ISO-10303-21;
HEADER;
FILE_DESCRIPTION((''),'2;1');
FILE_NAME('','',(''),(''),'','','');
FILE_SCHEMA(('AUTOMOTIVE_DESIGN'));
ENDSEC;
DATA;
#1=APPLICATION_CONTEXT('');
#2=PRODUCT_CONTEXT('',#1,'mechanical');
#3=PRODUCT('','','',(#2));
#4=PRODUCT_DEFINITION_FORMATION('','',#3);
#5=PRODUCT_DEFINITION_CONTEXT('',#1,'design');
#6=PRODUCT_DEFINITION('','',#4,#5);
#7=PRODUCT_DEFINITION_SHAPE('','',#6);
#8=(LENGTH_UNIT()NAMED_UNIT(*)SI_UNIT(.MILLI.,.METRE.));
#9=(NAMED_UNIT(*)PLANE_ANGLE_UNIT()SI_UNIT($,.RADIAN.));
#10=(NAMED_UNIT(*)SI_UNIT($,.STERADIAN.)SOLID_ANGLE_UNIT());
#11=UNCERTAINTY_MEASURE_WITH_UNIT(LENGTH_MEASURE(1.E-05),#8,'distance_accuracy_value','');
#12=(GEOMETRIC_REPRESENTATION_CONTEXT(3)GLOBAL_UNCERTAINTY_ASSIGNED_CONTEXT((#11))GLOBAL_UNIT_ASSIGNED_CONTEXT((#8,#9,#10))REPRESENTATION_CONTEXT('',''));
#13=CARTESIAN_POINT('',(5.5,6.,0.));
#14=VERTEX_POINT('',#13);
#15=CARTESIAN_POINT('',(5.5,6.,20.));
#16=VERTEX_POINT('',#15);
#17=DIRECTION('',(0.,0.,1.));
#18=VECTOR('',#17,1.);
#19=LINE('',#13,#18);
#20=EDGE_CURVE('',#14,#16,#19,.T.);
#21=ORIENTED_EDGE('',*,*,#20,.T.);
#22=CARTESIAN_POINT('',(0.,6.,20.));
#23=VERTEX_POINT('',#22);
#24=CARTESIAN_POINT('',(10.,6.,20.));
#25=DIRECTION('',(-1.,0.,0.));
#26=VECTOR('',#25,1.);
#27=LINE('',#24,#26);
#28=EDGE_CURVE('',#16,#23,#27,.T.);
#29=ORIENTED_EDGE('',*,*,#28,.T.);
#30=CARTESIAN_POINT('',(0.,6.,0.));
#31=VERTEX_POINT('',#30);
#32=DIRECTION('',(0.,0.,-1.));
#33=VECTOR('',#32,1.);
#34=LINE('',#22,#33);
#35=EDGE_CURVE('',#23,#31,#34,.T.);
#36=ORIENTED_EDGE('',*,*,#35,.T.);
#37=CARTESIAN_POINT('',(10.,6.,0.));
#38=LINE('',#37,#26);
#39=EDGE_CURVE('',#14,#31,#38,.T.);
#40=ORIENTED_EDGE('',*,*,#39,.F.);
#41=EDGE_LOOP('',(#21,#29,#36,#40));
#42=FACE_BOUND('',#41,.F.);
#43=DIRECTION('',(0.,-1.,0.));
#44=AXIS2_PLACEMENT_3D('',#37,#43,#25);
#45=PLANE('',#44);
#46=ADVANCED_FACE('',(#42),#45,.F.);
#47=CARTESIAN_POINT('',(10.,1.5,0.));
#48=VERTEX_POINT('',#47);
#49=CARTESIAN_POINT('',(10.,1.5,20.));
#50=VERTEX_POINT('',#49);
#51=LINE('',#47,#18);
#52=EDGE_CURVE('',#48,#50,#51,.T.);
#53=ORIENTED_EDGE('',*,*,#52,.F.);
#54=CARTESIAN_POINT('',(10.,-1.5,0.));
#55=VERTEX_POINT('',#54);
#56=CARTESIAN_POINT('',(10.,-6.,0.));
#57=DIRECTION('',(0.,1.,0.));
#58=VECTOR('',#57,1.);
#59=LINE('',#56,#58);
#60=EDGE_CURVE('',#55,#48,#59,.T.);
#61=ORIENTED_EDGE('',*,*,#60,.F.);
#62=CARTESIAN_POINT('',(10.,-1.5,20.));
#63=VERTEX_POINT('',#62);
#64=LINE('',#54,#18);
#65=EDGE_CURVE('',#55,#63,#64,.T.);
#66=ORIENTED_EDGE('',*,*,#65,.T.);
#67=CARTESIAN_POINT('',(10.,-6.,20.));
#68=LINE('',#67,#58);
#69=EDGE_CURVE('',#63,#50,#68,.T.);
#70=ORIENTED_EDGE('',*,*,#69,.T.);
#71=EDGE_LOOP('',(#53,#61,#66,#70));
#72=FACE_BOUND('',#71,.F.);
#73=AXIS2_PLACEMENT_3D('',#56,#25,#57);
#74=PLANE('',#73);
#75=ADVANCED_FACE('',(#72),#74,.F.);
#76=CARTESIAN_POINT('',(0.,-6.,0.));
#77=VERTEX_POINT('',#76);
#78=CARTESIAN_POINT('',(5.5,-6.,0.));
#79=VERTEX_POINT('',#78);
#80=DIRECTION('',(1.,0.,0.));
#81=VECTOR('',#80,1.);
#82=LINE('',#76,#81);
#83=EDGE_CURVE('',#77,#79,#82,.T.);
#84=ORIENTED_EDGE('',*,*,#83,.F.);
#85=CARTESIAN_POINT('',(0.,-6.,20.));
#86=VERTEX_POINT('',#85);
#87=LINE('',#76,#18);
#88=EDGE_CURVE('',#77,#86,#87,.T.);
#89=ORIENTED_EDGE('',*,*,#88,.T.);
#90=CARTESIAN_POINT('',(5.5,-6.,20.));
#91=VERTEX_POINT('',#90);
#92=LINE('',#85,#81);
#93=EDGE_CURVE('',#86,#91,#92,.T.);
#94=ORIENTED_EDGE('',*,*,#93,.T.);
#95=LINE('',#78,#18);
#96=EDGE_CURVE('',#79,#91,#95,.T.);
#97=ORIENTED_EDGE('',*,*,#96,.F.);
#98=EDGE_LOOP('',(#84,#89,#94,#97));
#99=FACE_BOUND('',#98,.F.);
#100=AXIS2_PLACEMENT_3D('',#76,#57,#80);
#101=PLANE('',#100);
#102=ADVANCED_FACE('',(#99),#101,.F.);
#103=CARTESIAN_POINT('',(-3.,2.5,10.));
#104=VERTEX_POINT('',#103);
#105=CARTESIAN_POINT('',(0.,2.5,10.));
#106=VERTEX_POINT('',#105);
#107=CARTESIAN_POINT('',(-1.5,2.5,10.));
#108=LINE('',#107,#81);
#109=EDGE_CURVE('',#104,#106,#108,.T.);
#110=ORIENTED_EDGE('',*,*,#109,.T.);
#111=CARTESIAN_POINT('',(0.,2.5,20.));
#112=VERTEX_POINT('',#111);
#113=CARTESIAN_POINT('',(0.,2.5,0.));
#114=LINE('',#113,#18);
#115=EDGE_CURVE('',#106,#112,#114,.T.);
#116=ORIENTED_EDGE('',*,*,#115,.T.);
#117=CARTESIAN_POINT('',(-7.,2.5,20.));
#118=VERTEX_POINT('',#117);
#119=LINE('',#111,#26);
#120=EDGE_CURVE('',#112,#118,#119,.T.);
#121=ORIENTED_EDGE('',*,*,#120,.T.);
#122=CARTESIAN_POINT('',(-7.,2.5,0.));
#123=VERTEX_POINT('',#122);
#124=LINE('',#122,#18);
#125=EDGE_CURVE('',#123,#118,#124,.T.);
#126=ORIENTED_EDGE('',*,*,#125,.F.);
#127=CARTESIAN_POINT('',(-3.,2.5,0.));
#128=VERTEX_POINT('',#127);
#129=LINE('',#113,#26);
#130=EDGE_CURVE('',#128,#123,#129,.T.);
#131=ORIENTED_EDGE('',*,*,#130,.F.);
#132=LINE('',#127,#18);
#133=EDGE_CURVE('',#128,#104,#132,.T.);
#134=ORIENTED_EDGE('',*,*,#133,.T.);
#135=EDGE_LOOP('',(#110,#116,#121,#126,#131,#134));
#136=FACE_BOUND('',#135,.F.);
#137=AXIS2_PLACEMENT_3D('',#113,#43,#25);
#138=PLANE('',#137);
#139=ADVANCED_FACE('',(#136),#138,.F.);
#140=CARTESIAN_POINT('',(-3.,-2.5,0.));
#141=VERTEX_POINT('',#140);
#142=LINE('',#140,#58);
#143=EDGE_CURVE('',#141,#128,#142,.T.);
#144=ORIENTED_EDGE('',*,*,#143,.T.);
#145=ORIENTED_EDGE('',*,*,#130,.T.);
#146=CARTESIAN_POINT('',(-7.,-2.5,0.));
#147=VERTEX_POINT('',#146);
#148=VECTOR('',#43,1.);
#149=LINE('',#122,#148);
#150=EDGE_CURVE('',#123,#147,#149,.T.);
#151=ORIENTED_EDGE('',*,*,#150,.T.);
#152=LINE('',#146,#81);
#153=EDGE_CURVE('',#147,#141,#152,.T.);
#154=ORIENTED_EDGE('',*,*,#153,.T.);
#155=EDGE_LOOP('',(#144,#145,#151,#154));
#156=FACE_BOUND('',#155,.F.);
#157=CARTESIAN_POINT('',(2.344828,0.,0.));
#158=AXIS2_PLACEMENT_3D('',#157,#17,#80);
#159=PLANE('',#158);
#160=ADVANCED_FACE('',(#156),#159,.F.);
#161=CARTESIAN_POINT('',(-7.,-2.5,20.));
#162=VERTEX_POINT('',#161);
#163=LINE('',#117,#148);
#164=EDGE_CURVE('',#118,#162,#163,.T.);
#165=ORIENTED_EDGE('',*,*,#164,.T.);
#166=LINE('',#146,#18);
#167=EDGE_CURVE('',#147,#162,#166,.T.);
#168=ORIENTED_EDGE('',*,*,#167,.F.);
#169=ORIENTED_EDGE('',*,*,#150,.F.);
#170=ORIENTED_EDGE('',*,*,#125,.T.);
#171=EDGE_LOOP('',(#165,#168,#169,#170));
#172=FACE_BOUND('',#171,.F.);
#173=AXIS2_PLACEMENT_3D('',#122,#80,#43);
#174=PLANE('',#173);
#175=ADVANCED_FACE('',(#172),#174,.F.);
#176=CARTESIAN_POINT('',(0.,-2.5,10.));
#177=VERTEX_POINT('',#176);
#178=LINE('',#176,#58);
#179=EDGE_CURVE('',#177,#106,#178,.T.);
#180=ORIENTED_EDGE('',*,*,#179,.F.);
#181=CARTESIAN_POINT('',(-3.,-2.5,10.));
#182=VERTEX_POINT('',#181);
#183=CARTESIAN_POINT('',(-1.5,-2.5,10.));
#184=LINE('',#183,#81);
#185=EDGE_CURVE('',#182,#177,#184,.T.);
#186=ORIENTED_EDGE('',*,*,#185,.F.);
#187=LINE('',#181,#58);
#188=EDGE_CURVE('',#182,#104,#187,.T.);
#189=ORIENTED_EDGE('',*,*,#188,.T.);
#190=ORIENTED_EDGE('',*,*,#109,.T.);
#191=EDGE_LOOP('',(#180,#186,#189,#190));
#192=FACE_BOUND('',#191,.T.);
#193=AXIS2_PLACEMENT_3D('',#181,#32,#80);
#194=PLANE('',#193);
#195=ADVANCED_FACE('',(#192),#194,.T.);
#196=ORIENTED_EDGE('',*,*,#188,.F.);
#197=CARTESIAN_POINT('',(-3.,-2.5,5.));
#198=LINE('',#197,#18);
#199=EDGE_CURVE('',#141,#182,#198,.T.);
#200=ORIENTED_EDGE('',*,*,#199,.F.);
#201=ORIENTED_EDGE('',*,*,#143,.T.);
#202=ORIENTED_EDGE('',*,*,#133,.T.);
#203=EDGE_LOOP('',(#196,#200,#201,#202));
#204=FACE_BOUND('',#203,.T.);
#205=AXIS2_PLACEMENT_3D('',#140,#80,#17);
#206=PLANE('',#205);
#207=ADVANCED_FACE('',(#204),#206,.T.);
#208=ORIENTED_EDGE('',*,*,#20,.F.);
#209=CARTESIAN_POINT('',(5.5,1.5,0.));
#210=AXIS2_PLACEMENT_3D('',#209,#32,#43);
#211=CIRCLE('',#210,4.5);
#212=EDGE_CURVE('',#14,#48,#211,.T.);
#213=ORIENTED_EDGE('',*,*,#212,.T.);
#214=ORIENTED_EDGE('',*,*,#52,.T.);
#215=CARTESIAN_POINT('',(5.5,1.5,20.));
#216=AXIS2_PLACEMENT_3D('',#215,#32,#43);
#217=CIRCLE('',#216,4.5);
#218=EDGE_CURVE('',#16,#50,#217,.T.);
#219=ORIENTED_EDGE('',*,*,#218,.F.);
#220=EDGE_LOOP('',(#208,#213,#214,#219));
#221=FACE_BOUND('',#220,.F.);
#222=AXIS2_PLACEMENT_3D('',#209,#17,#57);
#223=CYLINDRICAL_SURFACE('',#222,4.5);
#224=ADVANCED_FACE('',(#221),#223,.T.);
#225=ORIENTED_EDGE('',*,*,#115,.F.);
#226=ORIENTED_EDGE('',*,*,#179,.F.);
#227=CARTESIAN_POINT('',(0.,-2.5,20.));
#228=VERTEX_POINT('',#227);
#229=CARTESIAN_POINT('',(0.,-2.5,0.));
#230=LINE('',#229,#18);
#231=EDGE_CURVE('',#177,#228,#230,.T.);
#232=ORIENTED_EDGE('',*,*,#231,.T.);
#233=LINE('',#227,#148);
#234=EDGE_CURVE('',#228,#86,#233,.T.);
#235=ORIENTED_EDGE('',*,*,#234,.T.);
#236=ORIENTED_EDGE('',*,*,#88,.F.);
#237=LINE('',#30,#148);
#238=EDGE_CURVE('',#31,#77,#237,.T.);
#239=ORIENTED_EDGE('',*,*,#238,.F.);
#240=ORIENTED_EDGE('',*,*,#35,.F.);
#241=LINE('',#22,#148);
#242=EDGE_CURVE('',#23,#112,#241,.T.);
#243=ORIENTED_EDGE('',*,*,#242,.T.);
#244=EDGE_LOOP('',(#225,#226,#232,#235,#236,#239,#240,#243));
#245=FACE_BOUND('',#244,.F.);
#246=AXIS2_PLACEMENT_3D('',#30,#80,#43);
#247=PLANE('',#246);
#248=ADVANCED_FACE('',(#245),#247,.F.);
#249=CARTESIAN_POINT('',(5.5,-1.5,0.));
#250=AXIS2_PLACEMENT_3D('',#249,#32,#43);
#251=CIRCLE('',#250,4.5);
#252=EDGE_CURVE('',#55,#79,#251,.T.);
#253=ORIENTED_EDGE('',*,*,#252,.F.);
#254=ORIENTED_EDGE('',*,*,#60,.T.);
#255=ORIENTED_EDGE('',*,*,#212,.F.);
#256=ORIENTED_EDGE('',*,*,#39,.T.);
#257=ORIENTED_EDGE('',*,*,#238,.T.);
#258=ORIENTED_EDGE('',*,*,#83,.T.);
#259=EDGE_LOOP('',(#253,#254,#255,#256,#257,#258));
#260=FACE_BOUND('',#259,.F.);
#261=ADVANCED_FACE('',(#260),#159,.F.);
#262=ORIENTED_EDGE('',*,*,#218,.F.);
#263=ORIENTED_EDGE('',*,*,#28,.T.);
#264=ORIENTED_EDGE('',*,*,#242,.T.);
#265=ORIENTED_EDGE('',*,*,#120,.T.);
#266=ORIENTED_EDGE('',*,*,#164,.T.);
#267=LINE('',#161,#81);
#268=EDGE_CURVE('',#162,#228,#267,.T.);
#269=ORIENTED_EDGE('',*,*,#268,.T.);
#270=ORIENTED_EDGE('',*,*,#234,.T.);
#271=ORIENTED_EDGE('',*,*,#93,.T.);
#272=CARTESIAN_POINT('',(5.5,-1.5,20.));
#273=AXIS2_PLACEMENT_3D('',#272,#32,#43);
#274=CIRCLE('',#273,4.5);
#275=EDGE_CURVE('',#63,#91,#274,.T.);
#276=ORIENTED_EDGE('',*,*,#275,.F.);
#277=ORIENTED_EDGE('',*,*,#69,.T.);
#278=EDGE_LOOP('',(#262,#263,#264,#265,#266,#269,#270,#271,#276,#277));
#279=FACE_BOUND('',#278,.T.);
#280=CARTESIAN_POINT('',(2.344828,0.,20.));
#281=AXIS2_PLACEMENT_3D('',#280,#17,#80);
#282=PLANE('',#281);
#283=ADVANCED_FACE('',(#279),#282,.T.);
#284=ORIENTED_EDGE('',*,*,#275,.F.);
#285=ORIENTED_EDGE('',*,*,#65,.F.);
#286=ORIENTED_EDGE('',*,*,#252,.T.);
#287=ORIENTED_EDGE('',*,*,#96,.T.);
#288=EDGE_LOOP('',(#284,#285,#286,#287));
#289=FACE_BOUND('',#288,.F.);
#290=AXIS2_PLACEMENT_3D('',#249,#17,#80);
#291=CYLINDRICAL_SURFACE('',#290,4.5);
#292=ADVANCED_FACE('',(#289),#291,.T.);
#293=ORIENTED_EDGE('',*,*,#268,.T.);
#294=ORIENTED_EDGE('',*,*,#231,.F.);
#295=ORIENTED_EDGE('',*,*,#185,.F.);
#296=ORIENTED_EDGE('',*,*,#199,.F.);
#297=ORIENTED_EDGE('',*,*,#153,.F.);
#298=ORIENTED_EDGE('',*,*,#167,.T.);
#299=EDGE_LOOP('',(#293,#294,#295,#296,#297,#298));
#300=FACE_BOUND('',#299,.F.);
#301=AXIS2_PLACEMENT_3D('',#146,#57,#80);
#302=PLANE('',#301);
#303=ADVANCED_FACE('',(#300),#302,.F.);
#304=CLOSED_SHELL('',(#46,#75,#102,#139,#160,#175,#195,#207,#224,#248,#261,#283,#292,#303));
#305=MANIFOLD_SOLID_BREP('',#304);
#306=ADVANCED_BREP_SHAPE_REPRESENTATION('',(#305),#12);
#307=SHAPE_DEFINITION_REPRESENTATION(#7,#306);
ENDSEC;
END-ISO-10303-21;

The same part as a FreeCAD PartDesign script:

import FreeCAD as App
import Part
import Sketcher


def edges_at(feature, points):
    """Names of the edges that pass closest to the given points."""
    edges = feature.Shape.Edges
    near = lambda p: min(range(len(edges)), key=lambda i: edges[i].distToShape(Part.Vertex(*p))[0])
    return sorted({f"Edge{near(p) + 1}" for p in points})


def add_polygon(sketch, points):
    """Adds a closed chain of lines whose ends are joined by coincident constraints."""
    first, n = sketch.GeometryCount, len(points)
    for a, b in zip(points, points[1:] + points[:1]):
        sketch.addGeometry(Part.LineSegment(App.Vector(*a, 0), App.Vector(*b, 0)), False)
    for i in range(n):
        sketch.addConstraint(Sketcher.Constraint("Coincident", first + i, 2, first + (i + 1) % n, 1))

doc = App.newDocument("Part")
body = doc.addObject("PartDesign::Body", "Body")

# Sketch on XY plane
sketch1 = doc.addObject("Sketcher::SketchObject", "Sketch")
body.addObject(sketch1)
sketch1.AttachmentSupport = (doc.XY_Plane, [""])
sketch1.MapMode = "FlatFace"
add_polygon(sketch1, [(-7, 2.5), (-7, -2.5), (0, -2.5), (0, -6), (10, -6), (10, 6), (0, 6), (0, 2.5)])  # lines 0-7
sketch1.addConstraint([
    Sketcher.Constraint("Vertical", 0),
    Sketcher.Constraint("Horizontal", 1),
    Sketcher.Constraint("Vertical", 2),
    Sketcher.Constraint("Horizontal", 3),
    Sketcher.Constraint("Vertical", 4),
    Sketcher.Constraint("Horizontal", 5),
    Sketcher.Constraint("Vertical", 6),
    Sketcher.Constraint("Horizontal", 7),
    Sketcher.Constraint("Symmetric", 2, 2, 5, 2, -1, 1),
    Sketcher.Constraint("Symmetric", 1, 2, 6, 2, -1),
    Sketcher.Constraint("DistanceX", 1, 1, 1, 2, 7.0),
    Sketcher.Constraint("DistanceX", 3, 1, 3, 2, 10.0),
    Sketcher.Constraint("DistanceY", 0, 2, 0, 1, 5.0),
    Sketcher.Constraint("DistanceY", 4, 1, 4, 2, 12.0),
])
pad1 = doc.addObject("PartDesign::Pad", "Pad")
body.addObject(pad1)
pad1.Profile = sketch1
pad1.Length = 20

# Sketch on XZ plane
sketch2 = doc.addObject("Sketcher::SketchObject", "Sketch001")
body.addObject(sketch2)
sketch2.AttachmentSupport = (doc.XZ_Plane, [""])
sketch2.MapMode = "FlatFace"
sketch2.AttachmentOffset = App.Placement(App.Vector(0, 0, 2.5), App.Rotation())
add_polygon(sketch2, [(-3, 10), (-3, 0), (0, 0), (0, 10)])  # lines 0-3
sketch2.addConstraint([
    Sketcher.Constraint("Vertical", 0),
    Sketcher.Constraint("Horizontal", 1),
    Sketcher.Constraint("Vertical", 2),
    Sketcher.Constraint("Horizontal", 3),
    Sketcher.Constraint("Coincident", 1, 2, -1, 1),
    Sketcher.Constraint("DistanceX", 1, 1, 1, 2, 3.0),
    Sketcher.Constraint("DistanceY", 0, 2, 0, 1, 10.0),
])
pocket1 = doc.addObject("PartDesign::Pocket", "Pocket")
body.addObject(pocket1)
pocket1.Profile = sketch2
pocket1.Type = "ThroughAll"
doc.recompute()

fillet = doc.addObject("PartDesign::Fillet", "Fillet")
body.addObject(fillet)
fillet.Base = (pocket1, edges_at(pocket1, [(10, 6, 10), (10, -6, 10)]))
fillet.Radius = 4.5

doc.recompute()
